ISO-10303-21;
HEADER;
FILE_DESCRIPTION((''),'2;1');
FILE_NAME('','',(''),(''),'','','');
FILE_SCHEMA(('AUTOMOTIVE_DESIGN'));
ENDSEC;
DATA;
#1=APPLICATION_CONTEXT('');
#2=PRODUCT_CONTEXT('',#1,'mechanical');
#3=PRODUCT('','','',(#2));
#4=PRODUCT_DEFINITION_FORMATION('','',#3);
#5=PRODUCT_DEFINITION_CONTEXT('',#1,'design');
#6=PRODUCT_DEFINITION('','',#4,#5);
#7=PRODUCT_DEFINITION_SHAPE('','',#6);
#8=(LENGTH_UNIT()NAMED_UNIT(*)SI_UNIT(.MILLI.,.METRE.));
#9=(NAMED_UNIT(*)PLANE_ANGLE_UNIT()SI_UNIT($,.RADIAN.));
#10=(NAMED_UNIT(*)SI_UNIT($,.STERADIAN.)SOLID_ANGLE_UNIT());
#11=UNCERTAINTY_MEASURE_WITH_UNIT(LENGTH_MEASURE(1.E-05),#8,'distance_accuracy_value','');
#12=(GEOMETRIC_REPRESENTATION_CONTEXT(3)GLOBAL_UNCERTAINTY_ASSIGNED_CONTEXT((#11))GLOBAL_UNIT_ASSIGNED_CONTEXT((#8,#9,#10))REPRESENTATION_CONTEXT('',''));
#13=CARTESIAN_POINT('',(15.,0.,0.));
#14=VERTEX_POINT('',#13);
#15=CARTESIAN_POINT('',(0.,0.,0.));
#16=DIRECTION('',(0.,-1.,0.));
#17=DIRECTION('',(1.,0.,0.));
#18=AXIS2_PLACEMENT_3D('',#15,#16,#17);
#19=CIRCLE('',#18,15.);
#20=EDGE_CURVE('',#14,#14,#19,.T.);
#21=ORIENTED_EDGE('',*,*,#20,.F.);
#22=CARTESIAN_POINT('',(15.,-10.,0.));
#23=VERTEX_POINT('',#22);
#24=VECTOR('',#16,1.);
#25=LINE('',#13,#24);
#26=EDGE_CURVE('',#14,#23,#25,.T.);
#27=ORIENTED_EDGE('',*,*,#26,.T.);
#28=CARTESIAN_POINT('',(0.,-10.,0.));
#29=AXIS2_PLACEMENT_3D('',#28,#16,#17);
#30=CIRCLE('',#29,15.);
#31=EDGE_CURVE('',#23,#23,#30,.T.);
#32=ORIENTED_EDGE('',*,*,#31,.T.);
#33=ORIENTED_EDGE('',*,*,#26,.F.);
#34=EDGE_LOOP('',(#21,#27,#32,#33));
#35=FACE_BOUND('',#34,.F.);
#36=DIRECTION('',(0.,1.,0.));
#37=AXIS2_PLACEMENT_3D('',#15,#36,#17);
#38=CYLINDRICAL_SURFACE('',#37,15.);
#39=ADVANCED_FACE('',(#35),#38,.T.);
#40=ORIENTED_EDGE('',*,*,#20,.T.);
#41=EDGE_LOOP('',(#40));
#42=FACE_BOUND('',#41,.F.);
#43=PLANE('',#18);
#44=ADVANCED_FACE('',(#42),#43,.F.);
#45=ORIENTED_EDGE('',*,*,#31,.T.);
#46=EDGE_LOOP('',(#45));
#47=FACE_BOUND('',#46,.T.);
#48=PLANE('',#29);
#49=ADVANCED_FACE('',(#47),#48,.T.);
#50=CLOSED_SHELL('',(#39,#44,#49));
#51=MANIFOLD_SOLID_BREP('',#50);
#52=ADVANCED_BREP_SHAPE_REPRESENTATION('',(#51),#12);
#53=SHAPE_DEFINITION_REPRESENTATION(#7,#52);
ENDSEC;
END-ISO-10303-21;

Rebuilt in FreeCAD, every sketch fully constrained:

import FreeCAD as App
import Part
import Sketcher
from FreeCAD import Vector
Q = App.Units.Quantity

doc = App.newDocument("Part")
body = doc.addObject("PartDesign::Body", "Body")

# Sketch on XZ plane
sketch1 = body.newObject("Sketcher::SketchObject", "Sketch")
sketch1.AttachmentSupport = (doc.getObject("XZ_Plane"), [""])
sketch1.MapMode = "FlatFace"
sketch1.addGeometry(Part.Circle(Vector(0, 0, 0), Vector(0, 0, 1), 15), False)
sketch1.addConstraint(Sketcher.Constraint("Coincident", 0, 3, -1, 1))
sketch1.addConstraint(Sketcher.Constraint("Diameter", 0, Q("30 mm")))
pad1 = body.newObject("PartDesign::Pad", "Pad")
pad1.Profile = sketch1
pad1.Length = 10

doc.recompute()
